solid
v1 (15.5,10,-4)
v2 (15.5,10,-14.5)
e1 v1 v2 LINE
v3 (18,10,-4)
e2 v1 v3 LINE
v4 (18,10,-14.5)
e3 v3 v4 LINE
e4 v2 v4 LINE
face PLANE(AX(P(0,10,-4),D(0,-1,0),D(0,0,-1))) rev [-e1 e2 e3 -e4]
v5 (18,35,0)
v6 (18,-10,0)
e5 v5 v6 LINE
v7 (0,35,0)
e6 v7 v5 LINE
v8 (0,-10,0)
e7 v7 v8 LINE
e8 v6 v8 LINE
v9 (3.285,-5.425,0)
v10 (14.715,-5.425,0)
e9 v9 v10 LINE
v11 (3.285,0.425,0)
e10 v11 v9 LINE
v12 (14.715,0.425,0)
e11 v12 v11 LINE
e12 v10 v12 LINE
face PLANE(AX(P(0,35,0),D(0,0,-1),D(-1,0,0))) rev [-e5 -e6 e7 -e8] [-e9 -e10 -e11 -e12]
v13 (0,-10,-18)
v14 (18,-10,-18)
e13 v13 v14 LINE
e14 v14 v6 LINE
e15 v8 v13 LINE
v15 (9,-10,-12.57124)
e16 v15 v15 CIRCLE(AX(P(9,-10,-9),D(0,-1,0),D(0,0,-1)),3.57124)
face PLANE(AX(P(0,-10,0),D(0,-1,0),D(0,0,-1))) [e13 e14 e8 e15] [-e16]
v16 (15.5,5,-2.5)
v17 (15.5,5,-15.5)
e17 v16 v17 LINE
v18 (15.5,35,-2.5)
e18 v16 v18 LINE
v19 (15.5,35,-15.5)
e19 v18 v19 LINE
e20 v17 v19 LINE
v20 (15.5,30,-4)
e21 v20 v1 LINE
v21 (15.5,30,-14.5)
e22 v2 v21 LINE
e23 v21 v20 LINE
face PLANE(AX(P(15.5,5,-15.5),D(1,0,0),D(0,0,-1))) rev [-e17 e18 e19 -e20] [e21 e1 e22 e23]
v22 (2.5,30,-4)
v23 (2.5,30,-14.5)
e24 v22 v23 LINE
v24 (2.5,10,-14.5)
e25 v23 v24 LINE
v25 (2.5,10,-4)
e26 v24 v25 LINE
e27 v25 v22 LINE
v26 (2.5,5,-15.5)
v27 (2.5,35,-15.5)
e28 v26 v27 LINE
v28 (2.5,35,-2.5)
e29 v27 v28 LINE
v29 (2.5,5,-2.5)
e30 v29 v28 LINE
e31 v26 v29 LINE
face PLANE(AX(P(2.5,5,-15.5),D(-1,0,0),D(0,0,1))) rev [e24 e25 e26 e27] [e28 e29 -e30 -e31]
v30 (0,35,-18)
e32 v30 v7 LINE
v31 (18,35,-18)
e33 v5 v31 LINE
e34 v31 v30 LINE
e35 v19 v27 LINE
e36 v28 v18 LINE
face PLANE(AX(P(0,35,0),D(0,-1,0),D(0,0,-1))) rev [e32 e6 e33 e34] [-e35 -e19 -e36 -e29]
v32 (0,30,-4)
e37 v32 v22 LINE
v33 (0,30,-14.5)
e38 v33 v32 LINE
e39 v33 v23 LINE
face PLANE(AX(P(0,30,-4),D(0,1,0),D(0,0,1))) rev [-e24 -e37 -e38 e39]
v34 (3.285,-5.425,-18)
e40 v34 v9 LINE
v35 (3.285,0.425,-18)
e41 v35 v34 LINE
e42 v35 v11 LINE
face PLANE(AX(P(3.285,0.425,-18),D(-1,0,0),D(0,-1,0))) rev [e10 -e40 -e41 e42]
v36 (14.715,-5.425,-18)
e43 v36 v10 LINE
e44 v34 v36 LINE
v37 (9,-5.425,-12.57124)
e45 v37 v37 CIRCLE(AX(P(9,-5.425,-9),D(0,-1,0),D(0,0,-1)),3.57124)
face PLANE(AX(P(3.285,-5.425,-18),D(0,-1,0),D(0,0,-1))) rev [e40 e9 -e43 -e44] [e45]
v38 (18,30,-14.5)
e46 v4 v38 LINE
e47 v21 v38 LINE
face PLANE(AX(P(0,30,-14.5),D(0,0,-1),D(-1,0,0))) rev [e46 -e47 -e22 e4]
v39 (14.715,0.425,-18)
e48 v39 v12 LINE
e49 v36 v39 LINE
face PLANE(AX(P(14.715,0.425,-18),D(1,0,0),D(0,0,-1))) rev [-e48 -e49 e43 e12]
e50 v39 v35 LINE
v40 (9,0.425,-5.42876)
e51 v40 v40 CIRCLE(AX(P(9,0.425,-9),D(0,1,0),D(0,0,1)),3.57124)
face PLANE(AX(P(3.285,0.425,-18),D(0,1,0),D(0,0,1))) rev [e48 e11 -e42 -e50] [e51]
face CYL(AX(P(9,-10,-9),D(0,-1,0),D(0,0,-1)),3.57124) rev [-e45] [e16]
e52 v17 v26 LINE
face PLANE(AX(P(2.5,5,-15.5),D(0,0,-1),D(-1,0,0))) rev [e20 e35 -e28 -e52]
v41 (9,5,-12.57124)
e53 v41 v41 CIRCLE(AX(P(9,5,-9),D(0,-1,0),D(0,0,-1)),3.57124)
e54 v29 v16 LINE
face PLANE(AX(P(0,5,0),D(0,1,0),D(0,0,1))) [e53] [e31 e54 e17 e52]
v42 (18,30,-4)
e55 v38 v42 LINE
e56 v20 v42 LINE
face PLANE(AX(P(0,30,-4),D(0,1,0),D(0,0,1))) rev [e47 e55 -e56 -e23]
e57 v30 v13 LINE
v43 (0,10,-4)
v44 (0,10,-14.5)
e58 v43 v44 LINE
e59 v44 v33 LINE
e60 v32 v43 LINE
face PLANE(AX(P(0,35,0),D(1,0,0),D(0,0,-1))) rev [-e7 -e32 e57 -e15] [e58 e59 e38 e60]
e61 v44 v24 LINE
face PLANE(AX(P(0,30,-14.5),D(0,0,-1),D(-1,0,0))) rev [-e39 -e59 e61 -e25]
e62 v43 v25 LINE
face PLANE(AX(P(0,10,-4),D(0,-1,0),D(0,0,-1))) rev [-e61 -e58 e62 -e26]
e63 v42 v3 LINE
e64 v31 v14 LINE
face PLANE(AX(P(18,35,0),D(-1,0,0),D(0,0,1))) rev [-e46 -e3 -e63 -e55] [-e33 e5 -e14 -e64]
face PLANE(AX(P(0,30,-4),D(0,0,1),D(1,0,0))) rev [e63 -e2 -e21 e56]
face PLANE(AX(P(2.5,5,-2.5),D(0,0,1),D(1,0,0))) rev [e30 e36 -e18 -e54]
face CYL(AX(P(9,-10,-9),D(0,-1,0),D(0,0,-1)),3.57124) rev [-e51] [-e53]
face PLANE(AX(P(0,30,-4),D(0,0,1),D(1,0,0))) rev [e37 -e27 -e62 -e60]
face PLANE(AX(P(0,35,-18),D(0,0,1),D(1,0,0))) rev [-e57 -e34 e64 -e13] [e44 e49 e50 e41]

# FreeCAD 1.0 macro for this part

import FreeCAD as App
import Part
import Sketcher

V = App.Vector
Q = App.Units.Quantity

doc = App.newDocument("Part")
params = doc.addObject("Spreadsheet::Sheet", "Params")
for row, (alias, value) in enumerate([
    ("sketch1_width", "18 mm"),
    ("pad1_length", "35 mm"),
    ("sketch2_width", "13 mm"),
    ("pocket1_length", "30 mm"),
    ("sketch3_width", "20 mm"),
    ("sketch3_height", "10.5 mm"),
    ("sketch4_width", "18 mm"),
    ("pad2_length", "10 mm"),
    ("sketch5_width", "11.43 mm"),
    ("sketch5_height", "5.85 mm"),
    ("hole_diameter", "7.14248 mm"),
    ("hole_depth", "15 mm"),
], start=1):
    params.set(f"A{row}", alias)
    params.set(f"B{row}", "=" + value)
    params.setAlias(f"B{row}", alias)

body = doc.addObject("PartDesign::Body", "Body")

# Sketch on XZ plane
sketch1 = body.newObject("Sketcher::SketchObject", "Sketch")
sketch1.AttachmentSupport = (doc.getObject("XZ_Plane"), [""])
sketch1.MapMode = "FlatFace"
sketch1.addGeometry(Part.LineSegment(V(0, -18, 0), V(0, 0, 0)), False)
sketch1.addGeometry(Part.LineSegment(V(0, 0, 0), V(18, 0, 0)), False)
sketch1.addGeometry(Part.LineSegment(V(18, 0, 0), V(18, -18, 0)), False)
sketch1.addGeometry(Part.LineSegment(V(18, -18, 0), V(0, -18, 0)), False)
sketch1.addConstraint(Sketcher.Constraint("Coincident", 0, 2, 1, 1))
sketch1.addConstraint(Sketcher.Constraint("Coincident", 1, 2, 2, 1))
sketch1.addConstraint(Sketcher.Constraint("Coincident", 2, 2, 3, 1))
sketch1.addConstraint(Sketcher.Constraint("Coincident", 3, 2, 0, 1))
sketch1.addConstraint(Sketcher.Constraint("Vertical", 0))
sketch1.addConstraint(Sketcher.Constraint("Horizontal", 1))
sketch1.addConstraint(Sketcher.Constraint("Vertical", 2))
sketch1.addConstraint(Sketcher.Constraint("Horizontal", 3))
sketch1.addConstraint(Sketcher.Constraint("Coincident", 0, 2, -1, 1))
sketch1.addConstraint(Sketcher.Constraint("Equal", 3, 0))
sketch1.addConstraint(Sketcher.Constraint("DistanceX", 1, 1, 1, 2, Q("18 mm")))
sketch1.setExpression("Constraints[10]", "Params.sketch1_width")
pad1 = body.newObject("PartDesign::Pad", "Pad")
pad1.Profile = sketch1
pad1.setExpression("Length", "Params.pad1_length")
pad1.Reversed = True

# Sketch on XZ plane
sketch2 = body.newObject("Sketcher::SketchObject", "Sketch001")
sketch2.AttachmentSupport = (doc.getObject("XZ_Plane"), [""])
sketch2.MapMode = "FlatFace"
sketch2.AttachmentOffset = App.Placement(V(0, 0, -35), App.Rotation())
sketch2.addGeometry(Part.LineSegment(V(2, -16, 0), V(2, -2, 0)), False)
sketch2.addGeometry(Part.LineSegment(V(2, -2, 0), V(16, -2, 0)), False)
sketch2.addGeometry(Part.LineSegment(V(16, -2, 0), V(16, -16, 0)), False)
sketch2.addGeometry(Part.LineSegment(V(16, -16, 0), V(2, -16, 0)), False)
sketch2.addConstraint(Sketcher.Constraint("Coincident", 0, 2, 1, 1))
sketch2.addConstraint(Sketcher.Constraint("Coincident", 1, 2, 2, 1))
sketch2.addConstraint(Sketcher.Constraint("Coincident", 2, 2, 3, 1))
sketch2.addConstraint(Sketcher.Constraint("Coincident", 3, 2, 0, 1))
sketch2.addConstraint(Sketcher.Constraint("Vertical", 0))
sketch2.addConstraint(Sketcher.Constraint("Horizontal", 1))
sketch2.addConstraint(Sketcher.Constraint("Vertical", 2))
sketch2.addConstraint(Sketcher.Constraint("Horizontal", 3))
sketch2.addConstraint(Sketcher.Constraint("Equal", 3, 0))
sketch2.addConstraint(Sketcher.Constraint("DistanceX", 1, 1, 1, 2, Q("13 mm")))
sketch2.addConstraint(Sketcher.Constraint("DistanceX", -1, 1, 0, 2, Q("2.5 mm")))
sketch2.addConstraint(Sketcher.Constraint("DistanceY", 0, 2, -1, 1, Q("2.5 mm")))
sketch2.setExpression("Constraints[9]", "Params.sketch2_width")
pocket1 = body.newObject("PartDesign::Pocket", "Pocket")
pocket1.Profile = sketch2
pocket1.setExpression("Length", "Params.pocket1_length")
pocket1.Reversed = True

# Sketch on YZ plane
sketch3 = body.newObject("Sketcher::SketchObject", "Sketch002")
sketch3.AttachmentSupport = (doc.getObject("YZ_Plane"), [""])
sketch3.MapMode = "FlatFace"
sketch3.AttachmentOffset = App.Placement(V(0, 0, 18), App.Rotation())
sketch3.addGeometry(Part.LineSegment(V(30, -4, 0), V(10, -4, 0)), False)
sketch3.addGeometry(Part.LineSegment(V(10, -4, 0), V(10, -14, 0)), False)
sketch3.addGeometry(Part.LineSegment(V(10, -14, 0), V(30, -14, 0)), False)
sketch3.addGeometry(Part.LineSegment(V(30, -14, 0), V(30, -4, 0)), False)
sketch3.addConstraint(Sketcher.Constraint("Coincident", 0, 2, 1, 1))
sketch3.addConstraint(Sketcher.Constraint("Coincident", 1, 2, 2, 1))
sketch3.addConstraint(Sketcher.Constraint("Coincident", 2, 2, 3, 1))
sketch3.addConstraint(Sketcher.Constraint("Coincident", 3, 2, 0, 1))
sketch3.addConstraint(Sketcher.Constraint("Horizontal", 0))
sketch3.addConstraint(Sketcher.Constraint("Vertical", 1))
sketch3.addConstraint(Sketcher.Constraint("Horizontal", 2))
sketch3.addConstraint(Sketcher.Constraint("Vertical", 3))
sketch3.addConstraint(Sketcher.Constraint("DistanceX", 0, 2, 0, 1, Q("20 mm")))
sketch3.addConstraint(Sketcher.Constraint("DistanceY", 1, 2, 1, 1, Q("10.5 mm")))
sketch3.addConstraint(Sketcher.Constraint("DistanceX", -1, 1, 0, 2, Q("10 mm")))
sketch3.addConstraint(Sketcher.Constraint("DistanceY", 0, 2, -1, 1, Q("4 mm")))
sketch3.setExpression("Constraints[8]", "Params.sketch3_width")
sketch3.setExpression("Constraints[9]", "Params.sketch3_height")
pocket2 = body.newObject("PartDesign::Pocket", "Pocket001")
pocket2.Profile = sketch3
pocket2.Type = "ThroughAll"

# Sketch on XZ plane
sketch4 = body.newObject("Sketcher::SketchObject", "Sketch003")
sketch4.AttachmentSupport = (doc.getObject("XZ_Plane"), [""])
sketch4.MapMode = "FlatFace"
sketch4.addGeometry(Part.LineSegment(V(0, 0, 0), V(0, -18, 0)), False)
sketch4.addGeometry(Part.LineSegment(V(0, -18, 0), V(18, -18, 0)), False)
sketch4.addGeometry(Part.LineSegment(V(18, -18, 0), V(18, 0, 0)), False)
sketch4.addGeometry(Part.LineSegment(V(18, 0, 0), V(0, 0, 0)), False)
sketch4.addConstraint(Sketcher.Constraint("Coincident", 0, 2, 1, 1))
sketch4.addConstraint(Sketcher.Constraint("Coincident", 1, 2, 2, 1))
sketch4.addConstraint(Sketcher.Constraint("Coincident", 2, 2, 3, 1))
sketch4.addConstraint(Sketcher.Constraint("Coincident", 3, 2, 0, 1))
sketch4.addConstraint(Sketcher.Constraint("Vertical", 0))
sketch4.addConstraint(Sketcher.Constraint("Horizontal", 1))
sketch4.addConstraint(Sketcher.Constraint("Vertical", 2))
sketch4.addConstraint(Sketcher.Constraint("Horizontal", 3))
sketch4.addConstraint(Sketcher.Constraint("Coincident", 3, 2, -1, 1))
sketch4.addConstraint(Sketcher.Constraint("Equal", 3, 0))
sketch4.addConstraint(Sketcher.Constraint("DistanceX", 1, 1, 1, 2, Q("18 mm")))
sketch4.setExpression("Constraints[10]", "Params.sketch4_width")
pad2 = body.newObject("PartDesign::Pad", "Pad001")
pad2.Profile = sketch4
pad2.setExpression("Length", "Params.pad2_length")

# Sketch on XY plane
sketch5 = body.newObject("Sketcher::SketchObject", "Sketch004")
sketch5.AttachmentSupport = (doc.getObject("XY_Plane"), [""])
sketch5.MapMode = "FlatFace"
sketch5.addGeometry(Part.LineSegment(V(3, 0, 0), V(3, -5, 0)), False)
sketch5.addGeometry(Part.LineSegment(V(3, -5, 0), V(15, -5, 0)), False)
sketch5.addGeometry(Part.LineSegment(V(15, -5, 0), V(15, 0, 0)), False)
sketch5.addGeometry(Part.LineSegment(V(15, 0, 0), V(3, 0, 0)), False)
sketch5.addConstraint(Sketcher.Constraint("Coincident", 0, 2, 1, 1))
sketch5.addConstraint(Sketcher.Constraint("Coincident", 1, 2, 2, 1))
sketch5.addConstraint(Sketcher.Constraint("Coincident", 2, 2, 3, 1))
sketch5.addConstraint(Sketcher.Constraint("Coincident", 3, 2, 0, 1))
sketch5.addConstraint(Sketcher.Constraint("Vertical", 0))
sketch5.addConstraint(Sketcher.Constraint("Horizontal", 1))
sketch5.addConstraint(Sketcher.Constraint("Vertical", 2))
sketch5.addConstraint(Sketcher.Constraint("Horizontal", 3))
sketch5.addConstraint(Sketcher.Constraint("DistanceX", 1, 1, 1, 2, Q("11.43 mm")))
sketch5.addConstraint(Sketcher.Constraint("DistanceY", 0, 2, 0, 1, Q("5.85 mm")))
sketch5.addConstraint(Sketcher.Constraint("DistanceX", -1, 1, 0, 2, Q("3.285 mm")))
sketch5.addConstraint(Sketcher.Constraint("DistanceY", 0, 2, -1, 1, Q("5.425 mm")))
sketch5.setExpression("Constraints[8]", "Params.sketch5_width")
sketch5.setExpression("Constraints[9]", "Params.sketch5_height")
pocket3 = body.newObject("PartDesign::Pocket", "Pocket002")
pocket3.Profile = sketch5
pocket3.Type = "ThroughAll"

# Sketch on XZ plane
sketch6 = body.newObject("Sketcher::SketchObject", "Sketch005")
sketch6.AttachmentSupport = (doc.getObject("XZ_Plane"), [""])
sketch6.MapMode = "FlatFace"
sketch6.AttachmentOffset = App.Placement(V(0, 0, 10), App.Rotation())
sketch6.addGeometry(Part.Circle(V(9, -9, 0), V(0, 0, 1), 3.6), False)
sketch6.addConstraint(Sketcher.Constraint("DistanceX", -1, 1, 0, 3, Q("9 mm")))
sketch6.addConstraint(Sketcher.Constraint("DistanceY", 0, 3, -1, 1, Q("9 mm")))
sketch6.addConstraint(Sketcher.Constraint("Diameter", 0, Q("7.14248 mm")))
doc.recompute()
hole = body.newObject("PartDesign::Hole", "Hole")
hole.Profile = sketch6
hole.ThreadType = "None"
hole.setExpression("Diameter", "Params.hole_diameter")
hole.DepthType = "Dimension"
hole.setExpression("Depth", "Params.hole_depth")
hole.DrillPoint = "Angled"
hole.DrillPointAngle = 118

doc.recompute()
